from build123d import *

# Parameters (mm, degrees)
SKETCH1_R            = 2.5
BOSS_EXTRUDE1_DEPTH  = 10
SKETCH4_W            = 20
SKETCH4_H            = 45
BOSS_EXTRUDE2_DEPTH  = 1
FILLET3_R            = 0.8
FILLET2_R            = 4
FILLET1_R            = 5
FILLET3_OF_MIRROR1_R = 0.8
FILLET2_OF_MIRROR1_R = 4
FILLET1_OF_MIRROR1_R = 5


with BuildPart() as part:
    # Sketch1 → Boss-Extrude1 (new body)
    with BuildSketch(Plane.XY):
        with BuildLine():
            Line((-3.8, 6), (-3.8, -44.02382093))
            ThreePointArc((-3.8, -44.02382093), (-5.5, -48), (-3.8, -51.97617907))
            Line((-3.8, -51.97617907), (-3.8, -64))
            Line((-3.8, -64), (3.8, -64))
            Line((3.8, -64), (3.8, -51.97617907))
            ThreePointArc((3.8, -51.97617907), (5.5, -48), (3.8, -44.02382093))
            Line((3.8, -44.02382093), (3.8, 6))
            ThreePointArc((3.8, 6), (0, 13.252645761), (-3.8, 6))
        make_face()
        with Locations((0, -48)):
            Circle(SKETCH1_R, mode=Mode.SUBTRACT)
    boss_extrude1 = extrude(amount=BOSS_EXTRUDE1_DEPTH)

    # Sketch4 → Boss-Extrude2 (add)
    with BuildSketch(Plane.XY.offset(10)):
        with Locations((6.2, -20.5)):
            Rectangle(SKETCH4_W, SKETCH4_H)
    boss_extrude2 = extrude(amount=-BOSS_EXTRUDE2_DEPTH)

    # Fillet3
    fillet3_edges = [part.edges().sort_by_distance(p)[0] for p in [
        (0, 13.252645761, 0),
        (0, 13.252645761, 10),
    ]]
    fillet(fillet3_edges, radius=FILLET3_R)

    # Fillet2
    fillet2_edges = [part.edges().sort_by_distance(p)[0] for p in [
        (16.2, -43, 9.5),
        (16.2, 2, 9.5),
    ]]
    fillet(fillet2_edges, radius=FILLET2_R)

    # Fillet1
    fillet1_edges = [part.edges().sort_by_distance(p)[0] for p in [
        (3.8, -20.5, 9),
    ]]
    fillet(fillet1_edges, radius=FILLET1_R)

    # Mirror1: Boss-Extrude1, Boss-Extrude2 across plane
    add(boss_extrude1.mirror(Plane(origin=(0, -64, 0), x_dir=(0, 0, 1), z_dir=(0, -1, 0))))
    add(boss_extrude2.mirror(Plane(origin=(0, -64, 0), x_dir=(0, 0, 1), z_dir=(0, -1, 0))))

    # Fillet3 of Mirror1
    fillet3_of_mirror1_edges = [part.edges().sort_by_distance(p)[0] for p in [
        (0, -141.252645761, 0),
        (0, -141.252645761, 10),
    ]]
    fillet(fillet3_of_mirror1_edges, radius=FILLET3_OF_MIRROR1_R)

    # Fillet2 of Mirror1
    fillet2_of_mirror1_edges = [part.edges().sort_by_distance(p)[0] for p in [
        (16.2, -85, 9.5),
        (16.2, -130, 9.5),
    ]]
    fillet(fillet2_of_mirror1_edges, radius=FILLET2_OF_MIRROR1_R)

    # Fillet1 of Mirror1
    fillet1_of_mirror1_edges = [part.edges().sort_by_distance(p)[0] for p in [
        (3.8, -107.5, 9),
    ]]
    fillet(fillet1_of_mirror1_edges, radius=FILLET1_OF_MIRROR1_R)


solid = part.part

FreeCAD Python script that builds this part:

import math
import FreeCAD as App
import Part
import Sketcher

V = App.Vector
Q = App.Units.Quantity


def edges_at(feature, points):
    """Names of the edges that pass closest to the given points."""
    edges = feature.Shape.Edges
    near = lambda p: min(range(len(edges)), key=lambda i: edges[i].distToShape(Part.Vertex(*p))[0])
    return sorted({f"Edge{near(p) + 1}" for p in points})


def add_polygon(sketch, points):
    """Adds a closed chain of lines whose ends are joined by coincident constraints."""
    first, n = sketch.GeometryCount, len(points)
    for a, b in zip(points, points[1:] + points[:1]):
        sketch.addGeometry(Part.LineSegment(App.Vector(*a, 0), App.Vector(*b, 0)), False)
    for i in range(n):
        sketch.addConstraint(Sketcher.Constraint("Coincident", first + i, 2, first + (i + 1) % n, 1))

doc = App.newDocument("Part")
body = doc.addObject("PartDesign::Body", "Body")

sketch1 = body.newObject("Sketcher::SketchObject", "Sketch")
sketch1.AttachmentSupport = (doc.getObject("XY_Plane"), [""])
sketch1.MapMode = "FlatFace"
sketch1.addGeometry([
    Part.LineSegment(V(-3.8, 6, 0), V(-3.8, -44.023821, 0)),
    Part.ArcOfCircle(Part.Circle(V(0, -48, 0), V(0, 0, 1), 5.5), math.radians(133.702114), math.radians(226.297886)),
    Part.LineSegment(V(-3.8, -51.976179, 0), V(-3.8, -64, 0)),
    Part.LineSegment(V(-3.8, -64, 0), V(3.8, -64, 0)),
    Part.LineSegment(V(3.8, -64, 0), V(3.8, -51.976179, 0)),
    Part.ArcOfCircle(Part.Circle(V(0, -48, 0), V(0, 0, 1), 5.5), math.radians(-46.297886), math.radians(46.297886)),
    Part.LineSegment(V(3.8, -44.023821, 0), V(3.8, 6, 0)),
    Part.ArcOfCircle(Part.Circle(V(0, 8.630824, 0), V(0, 0, 1), 4.621822), math.radians(-34.695713), math.radians(214.695713)),
    Part.Circle(V(0, -48, 0), V(0, 0, 1), 2.5),
], False)
sketch1.addConstraint([
    Sketcher.Constraint("Coincident", 0, 2, 1, 1),
    Sketcher.Constraint("Coincident", 1, 2, 2, 1),
    Sketcher.Constraint("Coincident", 2, 2, 3, 1),
    Sketcher.Constraint("Coincident", 3, 2, 4, 1),
    Sketcher.Constraint("Coincident", 4, 2, 5, 1),
    Sketcher.Constraint("Coincident", 5, 2, 6, 1),
    Sketcher.Constraint("Coincident", 6, 2, 7, 1),
    Sketcher.Constraint("Coincident", 7, 2, 0, 1),
    Sketcher.Constraint("Vertical", 0),
    Sketcher.Constraint("Vertical", 2),
    Sketcher.Constraint("Horizontal", 3),
    Sketcher.Constraint("Vertical", 4),
    Sketcher.Constraint("Vertical", 6),
    Sketcher.Constraint("Coincident", 5, 3, 1, 3),
    Sketcher.Constraint("Coincident", 8, 3, 1, 3),
    Sketcher.Constraint("Equal", 1, 5),
    Sketcher.Constraint("Symmetric", 1, 2, 4, 2, -2),
    Sketcher.Constraint("Symmetric", 6, 2, 7, 2, -2),
    Sketcher.Constraint("Vertical", 0, 2, 1, 2),
    Sketcher.Constraint("Diameter", 8, Q("5 mm")),
    Sketcher.Constraint("Radius", 1, Q("5.5 mm")),
    Sketcher.Constraint("DistanceX", 3, 1, 3, 2, Q("7.6 mm")),
    Sketcher.Constraint("DistanceY", 1, 3, -1, 1, Q("48 mm")),
    Sketcher.Constraint("DistanceY", 2, 2, -1, 1, Q("64 mm")),
    Sketcher.Constraint("DistanceY", -1, 1, 6, 2, Q("6 mm")),
    Sketcher.Constraint("Radius", 7, Q("4.621822 mm")),
])
pad1 = body.newObject("PartDesign::Pad", "Pad")
pad1.Profile = sketch1
pad1.Length = 10

sketch2 = body.newObject("Sketcher::SketchObject", "Sketch001")
sketch2.AttachmentSupport = (doc.getObject("XY_Plane"), [""])
sketch2.MapMode = "FlatFace"
sketch2.AttachmentOffset = App.Placement(V(0, 0, 10), App.Rotation())
add_polygon(sketch2, [(-3.8, 2), (-3.8, -43), (16.2, -43), (16.2, 2)])
sketch2.addConstraint([
    Sketcher.Constraint("Vertical", 0),
    Sketcher.Constraint("Horizontal", 1),
    Sketcher.Constraint("Vertical", 2),
    Sketcher.Constraint("Horizontal", 3),
    Sketcher.Constraint("DistanceX", 1, 1, 1, 2, Q("20 mm")),
    Sketcher.Constraint("DistanceY", 0, 2, 0, 1, Q("45 mm")),
    Sketcher.Constraint("DistanceY", 0, 2, -1, 1, Q("43 mm")),
    Sketcher.Constraint("DistanceX", 0, 2, -1, 1, Q("3.8 mm")),
])
pad2 = body.newObject("PartDesign::Pad", "Pad001")
pad2.Profile = sketch2
pad2.Length = 1
pad2.Reversed = True
doc.recompute()

fillet = body.newObject("PartDesign::Fillet", "Fillet")
fillet.Base = (pad2, edges_at(pad2, [(0, 13.253, 0), (0, 13.253, 10)]))
fillet.Radius = 0.8
doc.recompute()

fillet2 = body.newObject("PartDesign::Fillet", "Fillet001")
fillet2.Base = (fillet, edges_at(fillet, [(16.2, -43, 9.5), (16.2, 2, 9.5)]))
fillet2.Radius = 4
doc.recompute()

fillet3 = body.newObject("PartDesign::Fillet", "Fillet002")
fillet3.Base = (fillet2, edges_at(fillet2, [(3.8, -20.5, 9)]))
fillet3.Radius = 5
doc.recompute()

datumplane = body.newObject("PartDesign::Plane", "DatumPlane")
datumplane.AttachmentSupport = (doc.getObject("XZ_Plane"), [""])
datumplane.MapMode = "FlatFace"
datumplane.AttachmentOffset = App.Placement(V(0, 0, 64), App.Rotation())
mirrored = body.newObject("PartDesign::Mirrored", "Mirrored")
mirrored.Originals = [pad1, pad2]
mirrored.MirrorPlane = (datumplane, [""])
body.Tip = mirrored
doc.recompute()

fillet4 = body.newObject("PartDesign::Fillet", "Fillet003")
fillet4.Base = (mirrored, edges_at(mirrored, [(0, -141.253, 0), (0, -141.253, 10)]))
fillet4.Radius = 0.8
doc.recompute()

fillet5 = body.newObject("PartDesign::Fillet", "Fillet004")
fillet5.Base = (fillet4, edges_at(fillet4, [(16.2, -85, 9.5), (16.2, -130, 9.5)]))
fillet5.Radius = 4
doc.recompute()

fillet6 = body.newObject("PartDesign::Fillet", "Fillet005")
fillet6.Base = (fillet5, edges_at(fillet5, [(3.8, -107.5, 9)]))
fillet6.Radius = 5

doc.recompute()
